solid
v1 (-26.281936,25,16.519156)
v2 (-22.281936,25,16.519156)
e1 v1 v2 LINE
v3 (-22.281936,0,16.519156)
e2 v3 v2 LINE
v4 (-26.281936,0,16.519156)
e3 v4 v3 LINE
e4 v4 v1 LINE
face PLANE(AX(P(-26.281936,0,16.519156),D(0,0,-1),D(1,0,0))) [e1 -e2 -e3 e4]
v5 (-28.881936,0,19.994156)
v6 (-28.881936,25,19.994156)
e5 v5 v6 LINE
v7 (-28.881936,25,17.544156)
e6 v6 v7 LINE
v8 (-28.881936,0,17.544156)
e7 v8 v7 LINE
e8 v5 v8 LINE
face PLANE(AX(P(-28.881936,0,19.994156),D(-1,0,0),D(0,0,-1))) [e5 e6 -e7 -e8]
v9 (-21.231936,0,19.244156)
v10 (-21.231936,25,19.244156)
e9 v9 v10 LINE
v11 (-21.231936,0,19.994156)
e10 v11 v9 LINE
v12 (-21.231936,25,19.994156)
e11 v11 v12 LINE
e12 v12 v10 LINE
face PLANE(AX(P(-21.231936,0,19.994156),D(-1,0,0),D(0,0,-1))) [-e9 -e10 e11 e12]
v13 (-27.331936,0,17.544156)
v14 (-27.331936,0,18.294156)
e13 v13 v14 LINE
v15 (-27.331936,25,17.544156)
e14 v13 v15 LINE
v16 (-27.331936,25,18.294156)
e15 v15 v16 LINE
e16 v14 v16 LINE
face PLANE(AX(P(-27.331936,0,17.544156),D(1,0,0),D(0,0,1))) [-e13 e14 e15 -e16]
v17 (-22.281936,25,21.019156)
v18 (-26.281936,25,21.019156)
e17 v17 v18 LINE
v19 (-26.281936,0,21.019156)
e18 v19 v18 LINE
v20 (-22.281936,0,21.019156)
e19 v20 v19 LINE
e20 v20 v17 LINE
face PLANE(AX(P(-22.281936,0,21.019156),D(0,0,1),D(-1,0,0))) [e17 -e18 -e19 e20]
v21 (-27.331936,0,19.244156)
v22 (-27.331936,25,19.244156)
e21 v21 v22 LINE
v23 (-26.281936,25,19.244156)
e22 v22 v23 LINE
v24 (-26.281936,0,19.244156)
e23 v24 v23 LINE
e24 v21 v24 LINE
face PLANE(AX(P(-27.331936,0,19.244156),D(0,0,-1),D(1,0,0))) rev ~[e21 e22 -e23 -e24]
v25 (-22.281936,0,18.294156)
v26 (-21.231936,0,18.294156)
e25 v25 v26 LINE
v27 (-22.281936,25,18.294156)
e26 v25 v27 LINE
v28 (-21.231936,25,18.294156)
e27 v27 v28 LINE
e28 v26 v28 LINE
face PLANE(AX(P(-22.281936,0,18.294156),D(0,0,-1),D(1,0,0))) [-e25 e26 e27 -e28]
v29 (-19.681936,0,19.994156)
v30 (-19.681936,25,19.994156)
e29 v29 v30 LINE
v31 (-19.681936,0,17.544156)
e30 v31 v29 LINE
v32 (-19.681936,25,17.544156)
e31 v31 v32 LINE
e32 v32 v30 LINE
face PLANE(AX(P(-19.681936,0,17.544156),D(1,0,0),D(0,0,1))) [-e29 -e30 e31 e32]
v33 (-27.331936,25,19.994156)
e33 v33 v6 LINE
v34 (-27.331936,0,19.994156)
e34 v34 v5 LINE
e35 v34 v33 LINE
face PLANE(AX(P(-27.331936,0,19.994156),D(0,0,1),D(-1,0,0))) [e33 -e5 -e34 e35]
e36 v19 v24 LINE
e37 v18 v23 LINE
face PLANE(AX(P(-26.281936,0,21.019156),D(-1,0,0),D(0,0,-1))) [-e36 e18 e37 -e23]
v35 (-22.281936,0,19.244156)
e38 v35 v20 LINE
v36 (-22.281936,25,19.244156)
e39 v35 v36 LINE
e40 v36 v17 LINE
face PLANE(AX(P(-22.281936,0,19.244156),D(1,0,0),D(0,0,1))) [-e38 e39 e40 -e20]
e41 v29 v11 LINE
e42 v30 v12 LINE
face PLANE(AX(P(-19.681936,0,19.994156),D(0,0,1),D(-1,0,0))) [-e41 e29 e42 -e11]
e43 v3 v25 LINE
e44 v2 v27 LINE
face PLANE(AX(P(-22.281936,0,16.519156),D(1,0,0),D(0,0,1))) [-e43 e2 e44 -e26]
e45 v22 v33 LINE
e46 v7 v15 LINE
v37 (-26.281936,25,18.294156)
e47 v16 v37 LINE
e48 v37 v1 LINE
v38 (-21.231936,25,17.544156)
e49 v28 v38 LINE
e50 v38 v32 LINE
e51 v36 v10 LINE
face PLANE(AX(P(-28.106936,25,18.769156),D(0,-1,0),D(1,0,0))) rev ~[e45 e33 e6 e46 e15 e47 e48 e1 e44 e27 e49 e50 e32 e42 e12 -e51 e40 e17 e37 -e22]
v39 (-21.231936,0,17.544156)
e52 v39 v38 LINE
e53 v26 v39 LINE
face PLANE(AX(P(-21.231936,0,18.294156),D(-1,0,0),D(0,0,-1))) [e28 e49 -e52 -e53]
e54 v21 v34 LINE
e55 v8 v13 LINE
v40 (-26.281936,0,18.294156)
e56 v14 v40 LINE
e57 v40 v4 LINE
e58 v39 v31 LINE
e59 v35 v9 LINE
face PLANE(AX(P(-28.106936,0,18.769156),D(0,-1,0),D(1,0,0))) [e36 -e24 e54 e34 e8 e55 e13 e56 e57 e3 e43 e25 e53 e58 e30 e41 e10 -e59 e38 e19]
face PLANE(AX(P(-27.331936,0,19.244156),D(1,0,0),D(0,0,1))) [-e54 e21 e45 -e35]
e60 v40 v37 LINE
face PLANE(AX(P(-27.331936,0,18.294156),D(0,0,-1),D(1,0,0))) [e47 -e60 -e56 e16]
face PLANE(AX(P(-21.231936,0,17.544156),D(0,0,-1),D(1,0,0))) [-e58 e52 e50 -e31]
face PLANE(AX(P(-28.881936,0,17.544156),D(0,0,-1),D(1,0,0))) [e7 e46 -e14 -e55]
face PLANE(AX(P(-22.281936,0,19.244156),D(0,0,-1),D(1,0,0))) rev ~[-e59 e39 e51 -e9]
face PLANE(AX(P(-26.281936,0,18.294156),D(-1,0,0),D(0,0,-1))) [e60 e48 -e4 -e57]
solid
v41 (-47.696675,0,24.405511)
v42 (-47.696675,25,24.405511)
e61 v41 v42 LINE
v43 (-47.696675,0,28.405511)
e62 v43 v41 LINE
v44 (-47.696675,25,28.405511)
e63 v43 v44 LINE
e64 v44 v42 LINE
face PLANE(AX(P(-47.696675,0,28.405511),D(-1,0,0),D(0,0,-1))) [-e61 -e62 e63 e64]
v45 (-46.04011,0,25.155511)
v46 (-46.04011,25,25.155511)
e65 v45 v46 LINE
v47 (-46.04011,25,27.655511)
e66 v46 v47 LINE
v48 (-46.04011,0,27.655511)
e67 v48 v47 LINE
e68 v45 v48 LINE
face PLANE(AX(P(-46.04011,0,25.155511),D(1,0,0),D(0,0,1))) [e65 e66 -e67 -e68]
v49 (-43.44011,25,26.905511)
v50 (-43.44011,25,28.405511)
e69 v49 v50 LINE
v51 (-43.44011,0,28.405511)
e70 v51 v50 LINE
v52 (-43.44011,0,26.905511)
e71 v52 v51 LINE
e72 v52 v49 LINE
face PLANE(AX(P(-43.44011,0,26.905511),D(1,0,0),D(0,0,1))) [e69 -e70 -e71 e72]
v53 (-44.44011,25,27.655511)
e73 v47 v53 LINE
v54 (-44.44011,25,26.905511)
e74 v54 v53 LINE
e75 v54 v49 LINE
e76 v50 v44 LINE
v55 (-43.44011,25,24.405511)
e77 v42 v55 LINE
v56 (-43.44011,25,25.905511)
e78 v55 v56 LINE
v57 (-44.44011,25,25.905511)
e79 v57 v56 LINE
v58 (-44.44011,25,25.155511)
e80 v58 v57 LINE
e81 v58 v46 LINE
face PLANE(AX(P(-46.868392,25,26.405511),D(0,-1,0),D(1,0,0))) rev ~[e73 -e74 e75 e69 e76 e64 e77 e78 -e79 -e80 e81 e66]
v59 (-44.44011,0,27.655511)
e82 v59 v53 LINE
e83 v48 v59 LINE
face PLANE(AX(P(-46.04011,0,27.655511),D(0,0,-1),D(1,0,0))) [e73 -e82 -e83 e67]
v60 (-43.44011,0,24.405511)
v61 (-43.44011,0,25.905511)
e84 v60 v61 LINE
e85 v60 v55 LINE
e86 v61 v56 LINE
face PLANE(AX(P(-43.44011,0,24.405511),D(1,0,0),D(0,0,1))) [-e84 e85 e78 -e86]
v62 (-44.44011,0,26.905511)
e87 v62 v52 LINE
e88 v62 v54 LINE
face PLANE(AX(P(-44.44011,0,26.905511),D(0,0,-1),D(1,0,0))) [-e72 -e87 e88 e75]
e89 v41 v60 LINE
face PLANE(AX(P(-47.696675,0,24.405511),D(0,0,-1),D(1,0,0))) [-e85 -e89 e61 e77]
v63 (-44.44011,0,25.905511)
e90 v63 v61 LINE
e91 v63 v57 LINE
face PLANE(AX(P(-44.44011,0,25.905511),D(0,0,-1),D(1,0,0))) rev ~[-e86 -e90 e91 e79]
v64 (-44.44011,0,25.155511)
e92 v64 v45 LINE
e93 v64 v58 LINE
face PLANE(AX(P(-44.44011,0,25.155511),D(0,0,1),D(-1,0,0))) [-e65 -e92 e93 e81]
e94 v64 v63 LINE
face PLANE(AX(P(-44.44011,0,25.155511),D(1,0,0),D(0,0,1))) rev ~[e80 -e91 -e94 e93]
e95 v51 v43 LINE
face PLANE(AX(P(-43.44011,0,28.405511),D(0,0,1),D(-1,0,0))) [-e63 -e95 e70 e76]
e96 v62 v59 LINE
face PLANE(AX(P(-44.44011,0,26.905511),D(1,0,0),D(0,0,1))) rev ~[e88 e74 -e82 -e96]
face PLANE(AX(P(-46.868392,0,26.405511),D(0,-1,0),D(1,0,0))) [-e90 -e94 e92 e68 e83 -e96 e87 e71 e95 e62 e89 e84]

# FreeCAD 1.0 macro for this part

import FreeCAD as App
import Part
import Sketcher
from FreeCAD import Vector
Q = App.Units.Quantity

doc = App.newDocument("Part")
body = doc.addObject("PartDesign::Body", "Body")

sketch1 = body.newObject("Sketcher::SketchObject", "Sketch")
sketch1.AttachmentSupport = (doc.getObject("XZ_Plane"), [""])
sketch1.MapMode = "FlatFace"
sketch1.addGeometry(Part.LineSegment(Vector(-27.3, 17.5, 0), Vector(-27.3, 18.3, 0)), False)
sketch1.addGeometry(Part.LineSegment(Vector(-27.3, 18.3, 0), Vector(-26.3, 18.3, 0)), False)
sketch1.addGeometry(Part.LineSegment(Vector(-26.3, 18.3, 0), Vector(-26.3, 16.5, 0)), False)
sketch1.addGeometry(Part.LineSegment(Vector(-26.3, 16.5, 0), Vector(-22.3, 16.5, 0)), False)
sketch1.addGeometry(Part.LineSegment(Vector(-22.3, 16.5, 0), Vector(-22.3, 18.3, 0)), False)
sketch1.addGeometry(Part.LineSegment(Vector(-22.3, 18.3, 0), Vector(-21.2, 18.3, 0)), False)
sketch1.addGeometry(Part.LineSegment(Vector(-21.2, 18.3, 0), Vector(-21.2, 17.5, 0)), False)
sketch1.addGeometry(Part.LineSegment(Vector(-21.2, 17.5, 0), Vector(-19.7, 17.5, 0)), False)
sketch1.addGeometry(Part.LineSegment(Vector(-19.7, 17.5, 0), Vector(-19.7, 20, 0)), False)
sketch1.addGeometry(Part.LineSegment(Vector(-19.7, 20, 0), Vector(-21.2, 20, 0)), False)
sketch1.addGeometry(Part.LineSegment(Vector(-21.2, 20, 0), Vector(-21.2, 19.2, 0)), False)
sketch1.addGeometry(Part.LineSegment(Vector(-21.2, 19.2, 0), Vector(-22.3, 19.2, 0)), False)
sketch1.addGeometry(Part.LineSegment(Vector(-22.3, 19.2, 0), Vector(-22.3, 21, 0)), False)
sketch1.addGeometry(Part.LineSegment(Vector(-22.3, 21, 0), Vector(-26.3, 21, 0)), False)
sketch1.addGeometry(Part.LineSegment(Vector(-26.3, 21, 0), Vector(-26.3, 19.2, 0)), False)
sketch1.addGeometry(Part.LineSegment(Vector(-26.3, 19.2, 0), Vector(-27.3, 19.2, 0)), False)
sketch1.addGeometry(Part.LineSegment(Vector(-27.3, 19.2, 0), Vector(-27.3, 20, 0)), False)
sketch1.addGeometry(Part.LineSegment(Vector(-27.3, 20, 0), Vector(-28.9, 20, 0)), False)
sketch1.addGeometry(Part.LineSegment(Vector(-28.9, 20, 0), Vector(-28.9, 17.5, 0)), False)
sketch1.addGeometry(Part.LineSegment(Vector(-28.9, 17.5, 0), Vector(-27.3, 17.5, 0)), False)
sketch1.addConstraint(Sketcher.Constraint("Coincident", 0, 2, 1, 1))
sketch1.addConstraint(Sketcher.Constraint("Coincident", 1, 2, 2, 1))
sketch1.addConstraint(Sketcher.Constraint("Coincident", 2, 2, 3, 1))
sketch1.addConstraint(Sketcher.Constraint("Coincident", 3, 2, 4, 1))
sketch1.addConstraint(Sketcher.Constraint("Coincident", 4, 2, 5, 1))
sketch1.addConstraint(Sketcher.Constraint("Coincident", 5, 2, 6, 1))
sketch1.addConstraint(Sketcher.Constraint("Coincident", 6, 2, 7, 1))
sketch1.addConstraint(Sketcher.Constraint("Coincident", 7, 2, 8, 1))
sketch1.addConstraint(Sketcher.Constraint("Coincident", 8, 2, 9, 1))
sketch1.addConstraint(Sketcher.Constraint("Coincident", 9, 2, 10, 1))
sketch1.addConstraint(Sketcher.Constraint("Coincident", 10, 2, 11, 1))
sketch1.addConstraint(Sketcher.Constraint("Coincident", 11, 2, 12, 1))
sketch1.addConstraint(Sketcher.Constraint("Coincident", 12, 2, 13, 1))
sketch1.addConstraint(Sketcher.Constraint("Coincident", 13, 2, 14, 1))
sketch1.addConstraint(Sketcher.Constraint("Coincident", 14, 2, 15, 1))
sketch1.addConstraint(Sketcher.Constraint("Coincident", 15, 2, 16, 1))
sketch1.addConstraint(Sketcher.Constraint("Coincident", 16, 2, 17, 1))
sketch1.addConstraint(Sketcher.Constraint("Coincident", 17, 2, 18, 1))
sketch1.addConstraint(Sketcher.Constraint("Coincident", 18, 2, 19, 1))
sketch1.addConstraint(Sketcher.Constraint("Coincident", 19, 2, 0, 1))
sketch1.addConstraint(Sketcher.Constraint("Vertical", 0))
sketch1.addConstraint(Sketcher.Constraint("Horizontal", 1))
sketch1.addConstraint(Sketcher.Constraint("Vertical", 2))
sketch1.addConstraint(Sketcher.Constraint("Horizontal", 3))
sketch1.addConstraint(Sketcher.Constraint("Vertical", 4))
sketch1.addConstraint(Sketcher.Constraint("Horizontal", 5))
sketch1.addConstraint(Sketcher.Constraint("Vertical", 6))
sketch1.addConstraint(Sketcher.Constraint("Horizontal", 7))
sketch1.addConstraint(Sketcher.Constraint("Vertical", 8))
sketch1.addConstraint(Sketcher.Constraint("Horizontal", 9))
sketch1.addConstraint(Sketcher.Constraint("Vertical", 10))
sketch1.addConstraint(Sketcher.Constraint("Horizontal", 11))
sketch1.addConstraint(Sketcher.Constraint("Vertical", 12))
sketch1.addConstraint(Sketcher.Constraint("Horizontal", 13))
sketch1.addConstraint(Sketcher.Constraint("Vertical", 14))
sketch1.addConstraint(Sketcher.Constraint("Horizontal", 15))
sketch1.addConstraint(Sketcher.Constraint("Vertical", 16))
sketch1.addConstraint(Sketcher.Constraint("Horizontal", 17))
sketch1.addConstraint(Sketcher.Constraint("Vertical", 18))
sketch1.addConstraint(Sketcher.Constraint("Horizontal", 19))
sketch1.addConstraint(Sketcher.Constraint("Horizontal", 1, 2, 4, 2))
sketch1.addConstraint(Sketcher.Constraint("Horizontal", 11, 2, 14, 2))
sketch1.addConstraint(Sketcher.Constraint("Horizontal", 9, 2, 16, 2))
sketch1.addConstraint(Sketcher.Constraint("Horizontal", 7, 2, 18, 2))
sketch1.addConstraint(Sketcher.Constraint("Vertical", 6, 2, 9, 2))
sketch1.addConstraint(Sketcher.Constraint("Vertical", 4, 2, 11, 2))
sketch1.addConstraint(Sketcher.Constraint("Vertical", 2, 2, 13, 2))
sketch1.addConstraint(Sketcher.Constraint("Vertical", 0, 2, 15, 2))
sketch1.addConstraint(Sketcher.Constraint("Equal", 1, 5))
sketch1.addConstraint(Sketcher.Constraint("Equal", 9, 17))
sketch1.addConstraint(Sketcher.Constraint("Equal", 6, 10))
sketch1.addConstraint(Sketcher.Constraint("Equal", 4, 12))
sketch1.addConstraint(Sketcher.Constraint("DistanceX", 3, 1, 3, 2, Q("4 mm")))
sketch1.addConstraint(Sketcher.Constraint("DistanceX", 1, 1, 1, 2, Q("1.05 mm")))
sketch1.addConstraint(Sketcher.Constraint("DistanceX", 7, 1, 7, 2, Q("1.55 mm")))
sketch1.addConstraint(Sketcher.Constraint("DistanceY", 0, 1, 0, 2, Q("0.75 mm")))
sketch1.addConstraint(Sketcher.Constraint("DistanceY", 8, 1, 8, 2, Q("2.45 mm")))
sketch1.addConstraint(Sketcher.Constraint("DistanceY", 2, 2, 13, 2, Q("4.5 mm")))
sketch1.addConstraint(Sketcher.Constraint("DistanceX", 0, 2, -1, 1, Q("27.331936 mm")))
sketch1.addConstraint(Sketcher.Constraint("DistanceY", -1, 1, 0, 2, Q("18.294156 mm")))
pad1 = body.newObject("PartDesign::Pad", "Pad")
pad1.Profile = sketch1
pad1.Length = 25
pad1.Reversed = True
body2 = doc.addObject("PartDesign::Body", "Body001")

sketch2 = body2.newObject("Sketcher::SketchObject", "Sketch001")
sketch2.AttachmentSupport = (doc.getObject("XZ_Plane001"), [""])
sketch2.MapMode = "FlatFace"
sketch2.addGeometry(Part.LineSegment(Vector(-47.7, 28.4, 0), Vector(-47.7, 24.4, 0)), False)
sketch2.addGeometry(Part.LineSegment(Vector(-47.7, 24.4, 0), Vector(-43.4, 24.4, 0)), False)
sketch2.addGeometry(Part.LineSegment(Vector(-43.4, 24.4, 0), Vector(-43.4, 25.9, 0)), False)
sketch2.addGeometry(Part.LineSegment(Vector(-43.4, 25.9, 0), Vector(-44.4, 25.9, 0)), False)
sketch2.addGeometry(Part.LineSegment(Vector(-44.4, 25.9, 0), Vector(-44.4, 25.2, 0)), False)
sketch2.addGeometry(Part.LineSegment(Vector(-44.4, 25.2, 0), Vector(-46, 25.2, 0)), False)
sketch2.addGeometry(Part.LineSegment(Vector(-46, 25.2, 0), Vector(-46, 27.7, 0)), False)
sketch2.addGeometry(Part.LineSegment(Vector(-46, 27.7, 0), Vector(-44.4, 27.7, 0)), False)
sketch2.addGeometry(Part.LineSegment(Vector(-44.4, 27.7, 0), Vector(-44.4, 26.9, 0)), False)
sketch2.addGeometry(Part.LineSegment(Vector(-44.4, 26.9, 0), Vector(-43.4, 26.9, 0)), False)
sketch2.addGeometry(Part.LineSegment(Vector(-43.4, 26.9, 0), Vector(-43.4, 28.4, 0)), False)
sketch2.addGeometry(Part.LineSegment(Vector(-43.4, 28.4, 0), Vector(-47.7, 28.4, 0)), False)
sketch2.addConstraint(Sketcher.Constraint("Coincident", 0, 2, 1, 1))
sketch2.addConstraint(Sketcher.Constraint("Coincident", 1, 2, 2, 1))
sketch2.addConstraint(Sketcher.Constraint("Coincident", 2, 2, 3, 1))
sketch2.addConstraint(Sketcher.Constraint("Coincident", 3, 2, 4, 1))
sketch2.addConstraint(Sketcher.Constraint("Coincident", 4, 2, 5, 1))
sketch2.addConstraint(Sketcher.Constraint("Coincident", 5, 2, 6, 1))
sketch2.addConstraint(Sketcher.Constraint("Coincident", 6, 2, 7, 1))
sketch2.addConstraint(Sketcher.Constraint("Coincident", 7, 2, 8, 1))
sketch2.addConstraint(Sketcher.Constraint("Coincident", 8, 2, 9, 1))
sketch2.addConstraint(Sketcher.Constraint("Coincident", 9, 2, 10, 1))
sketch2.addConstraint(Sketcher.Constraint("Coincident", 10, 2, 11, 1))
sketch2.addConstraint(Sketcher.Constraint("Coincident", 11, 2, 0, 1))
sketch2.addConstraint(Sketcher.Constraint("Vertical", 0))
sketch2.addConstraint(Sketcher.Constraint("Horizontal", 1))
sketch2.addConstraint(Sketcher.Constraint("Vertical", 2))
sketch2.addConstraint(Sketcher.Constraint("Horizontal", 3))
sketch2.addConstraint(Sketcher.Constraint("Vertical", 4))
sketch2.addConstraint(Sketcher.Constraint("Horizontal", 5))
sketch2.addConstraint(Sketcher.Constraint("Vertical", 6))
sketch2.addConstraint(Sketcher.Constraint("Horizontal", 7))
sketch2.addConstraint(Sketcher.Constraint("Vertical", 8))
sketch2.addConstraint(Sketcher.Constraint("Horizontal", 9))
sketch2.addConstraint(Sketcher.Constraint("Vertical", 10))
sketch2.addConstraint(Sketcher.Constraint("Horizontal", 11))
sketch2.addConstraint(Sketcher.Constraint("Vertical", 4, 2, 7, 2))
sketch2.addConstraint(Sketcher.Constraint("Vertical", 2, 2, 9, 2))
sketch2.addConstraint(Sketcher.Constraint("Equal", 4, 8))
sketch2.addConstraint(Sketcher.Constraint("Equal", 2, 10))
sketch2.addConstraint(Sketcher.Constraint("DistanceX", 3, 2, 3, 1, Q("1 mm")))
sketch2.addConstraint(Sketcher.Constraint("DistanceY", 0, 2, 0, 1, Q("4 mm")))
sketch2.addConstraint(Sketcher.Constraint("DistanceX", 5, 2, 5, 1, Q("1.6 mm")))
sketch2.addConstraint(Sketcher.Constraint("DistanceY", 2, 1, 2, 2, Q("1.5 mm")))
sketch2.addConstraint(Sketcher.Constraint("DistanceY", 6, 1, 6, 2, Q("2.5 mm")))
sketch2.addConstraint(Sketcher.Constraint("DistanceX", 1, 1, 1, 2, Q("4.256565 mm")))
sketch2.addConstraint(Sketcher.Constraint("DistanceY", -1, 1, 0, 2, Q("24.405511 mm")))
sketch2.addConstraint(Sketcher.Constraint("DistanceX", 1, 2, -1, 1, Q("43.44011 mm")))
pad2 = body2.newObject("PartDesign::Pad", "Pad001")
pad2.Profile = sketch2
pad2.Length = 25
pad2.Reversed = True

doc.recompute()
